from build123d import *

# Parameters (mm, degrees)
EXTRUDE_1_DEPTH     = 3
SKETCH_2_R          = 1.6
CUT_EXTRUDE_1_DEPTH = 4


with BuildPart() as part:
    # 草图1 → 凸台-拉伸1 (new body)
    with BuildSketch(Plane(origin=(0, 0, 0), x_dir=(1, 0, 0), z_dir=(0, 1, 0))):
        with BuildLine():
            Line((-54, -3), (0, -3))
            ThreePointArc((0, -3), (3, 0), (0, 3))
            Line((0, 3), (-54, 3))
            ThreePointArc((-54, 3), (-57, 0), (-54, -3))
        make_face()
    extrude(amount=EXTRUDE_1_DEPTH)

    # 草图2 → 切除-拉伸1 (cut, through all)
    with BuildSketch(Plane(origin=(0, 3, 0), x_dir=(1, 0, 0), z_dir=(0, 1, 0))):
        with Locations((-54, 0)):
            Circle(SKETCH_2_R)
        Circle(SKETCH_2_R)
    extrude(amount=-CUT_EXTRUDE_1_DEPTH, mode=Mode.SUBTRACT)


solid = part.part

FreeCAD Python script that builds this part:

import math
import FreeCAD as App
import Part
import Sketcher

V = App.Vector
Q = App.Units.Quantity

doc = App.newDocument("Part")
body = doc.addObject("PartDesign::Body", "Body")

# Sketch on XZ plane
sketch1 = body.newObject("Sketcher::SketchObject", "Sketch")
sketch1.AttachmentSupport = (doc.getObject("XZ_Plane"), [""])
sketch1.MapMode = "FlatFace"
sketch1.addGeometry([
    Part.LineSegment(V(-54, 3, 0), V(0, 3, 0)),
    Part.ArcOfCircle(Part.Circle(V(0, 0, 0), V(0, 0, 1), 3), math.radians(-90), math.radians(90)),
    Part.LineSegment(V(0, -3, 0), V(-54, -3, 0)),
    Part.ArcOfCircle(Part.Circle(V(-54, 0, 0), V(0, 0, 1), 3), math.radians(90), math.radians(270)),
], False)
sketch1.addConstraint([
    Sketcher.Constraint("Tangent", 0, 2, 1, 2),
    Sketcher.Constraint("Tangent", 1, 1, 2, 1),
    Sketcher.Constraint("Tangent", 2, 2, 3, 2),
    Sketcher.Constraint("Tangent", 3, 1, 0, 1),
    Sketcher.Constraint("Horizontal", 0),
    Sketcher.Constraint("Horizontal", 2),
    Sketcher.Constraint("Coincident", 1, 3, -1, 1),
    Sketcher.Constraint("Radius", 1, Q("3 mm")),
    Sketcher.Constraint("DistanceX", 0, 1, 0, 2, Q("54 mm")),
])
pad1 = body.newObject("PartDesign::Pad", "Pad")
pad1.Profile = sketch1
pad1.Length = 3
pad1.Reversed = True

# Sketch on XZ plane
sketch2 = body.newObject("Sketcher::SketchObject", "Sketch001")
sketch2.AttachmentSupport = (doc.getObject("XZ_Plane"), [""])
sketch2.MapMode = "FlatFace"
sketch2.AttachmentOffset = App.Placement(V(0, 0, -3), App.Rotation())
sketch2.addGeometry([
    Part.Circle(V(-54, 0, 0), V(0, 0, 1), 1.6),
    Part.Circle(V(0, 0, 0), V(0, 0, 1), 1.6),
], False)
sketch2.addConstraint([
    Sketcher.Constraint("Coincident", 1, 3, -1, 1),
    Sketcher.Constraint("Equal", 0, 1),
    Sketcher.Constraint("PointOnObject", 0, 3, -1),
    Sketcher.Constraint("Diameter", 0, Q("3.2 mm")),
    Sketcher.Constraint("DistanceX", 0, 3, -1, 1, Q("54 mm")),
])
pocket1 = body.newObject("PartDesign::Pocket", "Pocket")
pocket1.Profile = sketch2
pocket1.Type = "ThroughAll"
pocket1.Reversed = True

doc.recompute()
